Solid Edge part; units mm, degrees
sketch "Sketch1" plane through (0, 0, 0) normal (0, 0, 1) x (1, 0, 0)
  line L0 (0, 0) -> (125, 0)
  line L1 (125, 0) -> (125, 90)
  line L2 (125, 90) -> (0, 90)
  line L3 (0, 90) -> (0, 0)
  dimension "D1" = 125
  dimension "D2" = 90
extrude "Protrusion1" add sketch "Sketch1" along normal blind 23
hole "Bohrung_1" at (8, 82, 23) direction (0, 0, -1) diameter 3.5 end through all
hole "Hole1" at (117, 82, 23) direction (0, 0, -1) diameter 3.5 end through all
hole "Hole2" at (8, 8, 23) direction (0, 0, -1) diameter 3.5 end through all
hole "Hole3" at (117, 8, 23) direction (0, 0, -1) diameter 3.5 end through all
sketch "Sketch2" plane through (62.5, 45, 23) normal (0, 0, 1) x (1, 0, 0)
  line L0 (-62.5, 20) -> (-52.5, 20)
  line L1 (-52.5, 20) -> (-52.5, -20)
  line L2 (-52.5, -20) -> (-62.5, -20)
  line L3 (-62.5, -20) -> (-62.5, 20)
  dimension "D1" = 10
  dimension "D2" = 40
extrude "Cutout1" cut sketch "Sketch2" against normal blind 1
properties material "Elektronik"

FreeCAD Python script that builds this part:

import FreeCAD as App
import Part
import Sketcher

V = App.Vector

doc = App.newDocument("Part")
body = doc.addObject("PartDesign::Body", "Body")

# Sketch on XY plane
sketch1 = body.newObject("Sketcher::SketchObject", "Sketch")
sketch1.AttachmentSupport = (doc.getObject("XY_Plane"), [""])
sketch1.MapMode = "FlatFace"
sketch1.addGeometry(Part.LineSegment(V(0, 90, 0), V(0, 0, 0)), False)
sketch1.addGeometry(Part.LineSegment(V(0, 0, 0), V(125, 0, 0)), False)
sketch1.addGeometry(Part.LineSegment(V(125, 0, 0), V(125, 90, 0)), False)
sketch1.addGeometry(Part.LineSegment(V(125, 90, 0), V(0, 90, 0)), False)
sketch1.addConstraint(Sketcher.Constraint("Coincident", 0, 2, 1, 1))
sketch1.addConstraint(Sketcher.Constraint("Coincident", 1, 2, 2, 1))
sketch1.addConstraint(Sketcher.Constraint("Coincident", 2, 2, 3, 1))
sketch1.addConstraint(Sketcher.Constraint("Coincident", 3, 2, 0, 1))
sketch1.addConstraint(Sketcher.Constraint("Vertical", 0))
sketch1.addConstraint(Sketcher.Constraint("Horizontal", 1))
sketch1.addConstraint(Sketcher.Constraint("Vertical", 2))
sketch1.addConstraint(Sketcher.Constraint("Horizontal", 3))
sketch1.addConstraint(Sketcher.Constraint("Coincident", 0, 2, -1, 1))
sketch1.addConstraint(Sketcher.Constraint("DistanceX", 1, 1, 1, 2, 125.0))
sketch1.addConstraint(Sketcher.Constraint("DistanceY", 0, 2, 0, 1, 90.0))
pad1 = body.newObject("PartDesign::Pad", "Pad")
pad1.Profile = sketch1
pad1.Length = 23

# Sketch on XY plane
sketch2 = body.newObject("Sketcher::SketchObject", "Sketch001")
sketch2.AttachmentSupport = (doc.getObject("XY_Plane"), [""])
sketch2.MapMode = "FlatFace"
sketch2.AttachmentOffset = App.Placement(V(0, 0, 23), App.Rotation())
sketch2.addGeometry(Part.Circle(V(8, 82, 0), V(0, 0, 1), 1.75), False)
sketch2.addConstraint(Sketcher.Constraint("Diameter", 0, 3.5))
sketch2.addConstraint(Sketcher.Constraint("DistanceX", -1, 1, 0, 3, 8.0))
sketch2.addConstraint(Sketcher.Constraint("DistanceY", -1, 1, 0, 3, 82.0))
doc.recompute()
hole = body.newObject("PartDesign::Hole", "Hole")
hole.Profile = sketch2
hole.ThreadType = "None"
hole.Diameter = 3.5
hole.DepthType = "ThroughAll"

# Sketch on XY plane
sketch3 = body.newObject("Sketcher::SketchObject", "Sketch002")
sketch3.AttachmentSupport = (doc.getObject("XY_Plane"), [""])
sketch3.MapMode = "FlatFace"
sketch3.AttachmentOffset = App.Placement(V(0, 0, 23), App.Rotation())
sketch3.addGeometry(Part.Circle(V(117, 82, 0), V(0, 0, 1), 1.75), False)
sketch3.addConstraint(Sketcher.Constraint("Diameter", 0, 3.5))
sketch3.addConstraint(Sketcher.Constraint("DistanceX", -1, 1, 0, 3, 117.0))
sketch3.addConstraint(Sketcher.Constraint("DistanceY", -1, 1, 0, 3, 82.0))
doc.recompute()
hole2 = body.newObject("PartDesign::Hole", "Hole001")
hole2.Profile = sketch3
hole2.ThreadType = "None"
hole2.Diameter = 3.5
hole2.DepthType = "ThroughAll"

# Sketch on XY plane
sketch4 = body.newObject("Sketcher::SketchObject", "Sketch003")
sketch4.AttachmentSupport = (doc.getObject("XY_Plane"), [""])
sketch4.MapMode = "FlatFace"
sketch4.AttachmentOffset = App.Placement(V(0, 0, 23), App.Rotation())
sketch4.addGeometry(Part.Circle(V(8, 8, 0), V(0, 0, 1), 1.75), False)
sketch4.addConstraint(Sketcher.Constraint("Diameter", 0, 3.5))
sketch4.addConstraint(Sketcher.Constraint("DistanceX", -1, 1, 0, 3, 8.0))
sketch4.addConstraint(Sketcher.Constraint("DistanceY", -1, 1, 0, 3, 8.0))
doc.recompute()
hole3 = body.newObject("PartDesign::Hole", "Hole002")
hole3.Profile = sketch4
hole3.ThreadType = "None"
hole3.Diameter = 3.5
hole3.DepthType = "ThroughAll"

# Sketch on XY plane
sketch5 = body.newObject("Sketcher::SketchObject", "Sketch004")
sketch5.AttachmentSupport = (doc.getObject("XY_Plane"), [""])
sketch5.MapMode = "FlatFace"
sketch5.AttachmentOffset = App.Placement(V(0, 0, 23), App.Rotation())
sketch5.addGeometry(Part.Circle(V(117, 8, 0), V(0, 0, 1), 1.75), False)
sketch5.addConstraint(Sketcher.Constraint("Diameter", 0, 3.5))
sketch5.addConstraint(Sketcher.Constraint("DistanceX", -1, 1, 0, 3, 117.0))
sketch5.addConstraint(Sketcher.Constraint("DistanceY", -1, 1, 0, 3, 8.0))
doc.recompute()
hole4 = body.newObject("PartDesign::Hole", "Hole003")
hole4.Profile = sketch5
hole4.ThreadType = "None"
hole4.Diameter = 3.5
hole4.DepthType = "ThroughAll"

# Sketch on XY plane
sketch6 = body.newObject("Sketcher::SketchObject", "Sketch005")
sketch6.AttachmentSupport = (doc.getObject("XY_Plane"), [""])
sketch6.MapMode = "FlatFace"
sketch6.AttachmentOffset = App.Placement(V(0, 0, 23), App.Rotation())
sketch6.addGeometry(Part.LineSegment(V(10, 65, 0), V(0, 65, 0)), False)
sketch6.addGeometry(Part.LineSegment(V(0, 65, 0), V(0, 25, 0)), False)
sketch6.addGeometry(Part.LineSegment(V(0, 25, 0), V(10, 25, 0)), False)
sketch6.addGeometry(Part.LineSegment(V(10, 25, 0), V(10, 65, 0)), False)
sketch6.addConstraint(Sketcher.Constraint("Coincident", 0, 2, 1, 1))
sketch6.addConstraint(Sketcher.Constraint("Coincident", 1, 2, 2, 1))
sketch6.addConstraint(Sketcher.Constraint("Coincident", 2, 2, 3, 1))
sketch6.addConstraint(Sketcher.Constraint("Coincident", 3, 2, 0, 1))
sketch6.addConstraint(Sketcher.Constraint("Horizontal", 0))
sketch6.addConstraint(Sketcher.Constraint("Vertical", 1))
sketch6.addConstraint(Sketcher.Constraint("Horizontal", 2))
sketch6.addConstraint(Sketcher.Constraint("Vertical", 3))
sketch6.addConstraint(Sketcher.Constraint("PointOnObject", 0, 2, -2))
sketch6.addConstraint(Sketcher.Constraint("DistanceX", 0, 2, 0, 1, 10.0))
sketch6.addConstraint(Sketcher.Constraint("DistanceY", 1, 2, 1, 1, 40.0))
sketch6.addConstraint(Sketcher.Constraint("DistanceY", -1, 1, 0, 2, 65.0))
pocket1 = body.newObject("PartDesign::Pocket", "Pocket")
pocket1.Profile = sketch6
pocket1.Length = 1

doc.recompute()
